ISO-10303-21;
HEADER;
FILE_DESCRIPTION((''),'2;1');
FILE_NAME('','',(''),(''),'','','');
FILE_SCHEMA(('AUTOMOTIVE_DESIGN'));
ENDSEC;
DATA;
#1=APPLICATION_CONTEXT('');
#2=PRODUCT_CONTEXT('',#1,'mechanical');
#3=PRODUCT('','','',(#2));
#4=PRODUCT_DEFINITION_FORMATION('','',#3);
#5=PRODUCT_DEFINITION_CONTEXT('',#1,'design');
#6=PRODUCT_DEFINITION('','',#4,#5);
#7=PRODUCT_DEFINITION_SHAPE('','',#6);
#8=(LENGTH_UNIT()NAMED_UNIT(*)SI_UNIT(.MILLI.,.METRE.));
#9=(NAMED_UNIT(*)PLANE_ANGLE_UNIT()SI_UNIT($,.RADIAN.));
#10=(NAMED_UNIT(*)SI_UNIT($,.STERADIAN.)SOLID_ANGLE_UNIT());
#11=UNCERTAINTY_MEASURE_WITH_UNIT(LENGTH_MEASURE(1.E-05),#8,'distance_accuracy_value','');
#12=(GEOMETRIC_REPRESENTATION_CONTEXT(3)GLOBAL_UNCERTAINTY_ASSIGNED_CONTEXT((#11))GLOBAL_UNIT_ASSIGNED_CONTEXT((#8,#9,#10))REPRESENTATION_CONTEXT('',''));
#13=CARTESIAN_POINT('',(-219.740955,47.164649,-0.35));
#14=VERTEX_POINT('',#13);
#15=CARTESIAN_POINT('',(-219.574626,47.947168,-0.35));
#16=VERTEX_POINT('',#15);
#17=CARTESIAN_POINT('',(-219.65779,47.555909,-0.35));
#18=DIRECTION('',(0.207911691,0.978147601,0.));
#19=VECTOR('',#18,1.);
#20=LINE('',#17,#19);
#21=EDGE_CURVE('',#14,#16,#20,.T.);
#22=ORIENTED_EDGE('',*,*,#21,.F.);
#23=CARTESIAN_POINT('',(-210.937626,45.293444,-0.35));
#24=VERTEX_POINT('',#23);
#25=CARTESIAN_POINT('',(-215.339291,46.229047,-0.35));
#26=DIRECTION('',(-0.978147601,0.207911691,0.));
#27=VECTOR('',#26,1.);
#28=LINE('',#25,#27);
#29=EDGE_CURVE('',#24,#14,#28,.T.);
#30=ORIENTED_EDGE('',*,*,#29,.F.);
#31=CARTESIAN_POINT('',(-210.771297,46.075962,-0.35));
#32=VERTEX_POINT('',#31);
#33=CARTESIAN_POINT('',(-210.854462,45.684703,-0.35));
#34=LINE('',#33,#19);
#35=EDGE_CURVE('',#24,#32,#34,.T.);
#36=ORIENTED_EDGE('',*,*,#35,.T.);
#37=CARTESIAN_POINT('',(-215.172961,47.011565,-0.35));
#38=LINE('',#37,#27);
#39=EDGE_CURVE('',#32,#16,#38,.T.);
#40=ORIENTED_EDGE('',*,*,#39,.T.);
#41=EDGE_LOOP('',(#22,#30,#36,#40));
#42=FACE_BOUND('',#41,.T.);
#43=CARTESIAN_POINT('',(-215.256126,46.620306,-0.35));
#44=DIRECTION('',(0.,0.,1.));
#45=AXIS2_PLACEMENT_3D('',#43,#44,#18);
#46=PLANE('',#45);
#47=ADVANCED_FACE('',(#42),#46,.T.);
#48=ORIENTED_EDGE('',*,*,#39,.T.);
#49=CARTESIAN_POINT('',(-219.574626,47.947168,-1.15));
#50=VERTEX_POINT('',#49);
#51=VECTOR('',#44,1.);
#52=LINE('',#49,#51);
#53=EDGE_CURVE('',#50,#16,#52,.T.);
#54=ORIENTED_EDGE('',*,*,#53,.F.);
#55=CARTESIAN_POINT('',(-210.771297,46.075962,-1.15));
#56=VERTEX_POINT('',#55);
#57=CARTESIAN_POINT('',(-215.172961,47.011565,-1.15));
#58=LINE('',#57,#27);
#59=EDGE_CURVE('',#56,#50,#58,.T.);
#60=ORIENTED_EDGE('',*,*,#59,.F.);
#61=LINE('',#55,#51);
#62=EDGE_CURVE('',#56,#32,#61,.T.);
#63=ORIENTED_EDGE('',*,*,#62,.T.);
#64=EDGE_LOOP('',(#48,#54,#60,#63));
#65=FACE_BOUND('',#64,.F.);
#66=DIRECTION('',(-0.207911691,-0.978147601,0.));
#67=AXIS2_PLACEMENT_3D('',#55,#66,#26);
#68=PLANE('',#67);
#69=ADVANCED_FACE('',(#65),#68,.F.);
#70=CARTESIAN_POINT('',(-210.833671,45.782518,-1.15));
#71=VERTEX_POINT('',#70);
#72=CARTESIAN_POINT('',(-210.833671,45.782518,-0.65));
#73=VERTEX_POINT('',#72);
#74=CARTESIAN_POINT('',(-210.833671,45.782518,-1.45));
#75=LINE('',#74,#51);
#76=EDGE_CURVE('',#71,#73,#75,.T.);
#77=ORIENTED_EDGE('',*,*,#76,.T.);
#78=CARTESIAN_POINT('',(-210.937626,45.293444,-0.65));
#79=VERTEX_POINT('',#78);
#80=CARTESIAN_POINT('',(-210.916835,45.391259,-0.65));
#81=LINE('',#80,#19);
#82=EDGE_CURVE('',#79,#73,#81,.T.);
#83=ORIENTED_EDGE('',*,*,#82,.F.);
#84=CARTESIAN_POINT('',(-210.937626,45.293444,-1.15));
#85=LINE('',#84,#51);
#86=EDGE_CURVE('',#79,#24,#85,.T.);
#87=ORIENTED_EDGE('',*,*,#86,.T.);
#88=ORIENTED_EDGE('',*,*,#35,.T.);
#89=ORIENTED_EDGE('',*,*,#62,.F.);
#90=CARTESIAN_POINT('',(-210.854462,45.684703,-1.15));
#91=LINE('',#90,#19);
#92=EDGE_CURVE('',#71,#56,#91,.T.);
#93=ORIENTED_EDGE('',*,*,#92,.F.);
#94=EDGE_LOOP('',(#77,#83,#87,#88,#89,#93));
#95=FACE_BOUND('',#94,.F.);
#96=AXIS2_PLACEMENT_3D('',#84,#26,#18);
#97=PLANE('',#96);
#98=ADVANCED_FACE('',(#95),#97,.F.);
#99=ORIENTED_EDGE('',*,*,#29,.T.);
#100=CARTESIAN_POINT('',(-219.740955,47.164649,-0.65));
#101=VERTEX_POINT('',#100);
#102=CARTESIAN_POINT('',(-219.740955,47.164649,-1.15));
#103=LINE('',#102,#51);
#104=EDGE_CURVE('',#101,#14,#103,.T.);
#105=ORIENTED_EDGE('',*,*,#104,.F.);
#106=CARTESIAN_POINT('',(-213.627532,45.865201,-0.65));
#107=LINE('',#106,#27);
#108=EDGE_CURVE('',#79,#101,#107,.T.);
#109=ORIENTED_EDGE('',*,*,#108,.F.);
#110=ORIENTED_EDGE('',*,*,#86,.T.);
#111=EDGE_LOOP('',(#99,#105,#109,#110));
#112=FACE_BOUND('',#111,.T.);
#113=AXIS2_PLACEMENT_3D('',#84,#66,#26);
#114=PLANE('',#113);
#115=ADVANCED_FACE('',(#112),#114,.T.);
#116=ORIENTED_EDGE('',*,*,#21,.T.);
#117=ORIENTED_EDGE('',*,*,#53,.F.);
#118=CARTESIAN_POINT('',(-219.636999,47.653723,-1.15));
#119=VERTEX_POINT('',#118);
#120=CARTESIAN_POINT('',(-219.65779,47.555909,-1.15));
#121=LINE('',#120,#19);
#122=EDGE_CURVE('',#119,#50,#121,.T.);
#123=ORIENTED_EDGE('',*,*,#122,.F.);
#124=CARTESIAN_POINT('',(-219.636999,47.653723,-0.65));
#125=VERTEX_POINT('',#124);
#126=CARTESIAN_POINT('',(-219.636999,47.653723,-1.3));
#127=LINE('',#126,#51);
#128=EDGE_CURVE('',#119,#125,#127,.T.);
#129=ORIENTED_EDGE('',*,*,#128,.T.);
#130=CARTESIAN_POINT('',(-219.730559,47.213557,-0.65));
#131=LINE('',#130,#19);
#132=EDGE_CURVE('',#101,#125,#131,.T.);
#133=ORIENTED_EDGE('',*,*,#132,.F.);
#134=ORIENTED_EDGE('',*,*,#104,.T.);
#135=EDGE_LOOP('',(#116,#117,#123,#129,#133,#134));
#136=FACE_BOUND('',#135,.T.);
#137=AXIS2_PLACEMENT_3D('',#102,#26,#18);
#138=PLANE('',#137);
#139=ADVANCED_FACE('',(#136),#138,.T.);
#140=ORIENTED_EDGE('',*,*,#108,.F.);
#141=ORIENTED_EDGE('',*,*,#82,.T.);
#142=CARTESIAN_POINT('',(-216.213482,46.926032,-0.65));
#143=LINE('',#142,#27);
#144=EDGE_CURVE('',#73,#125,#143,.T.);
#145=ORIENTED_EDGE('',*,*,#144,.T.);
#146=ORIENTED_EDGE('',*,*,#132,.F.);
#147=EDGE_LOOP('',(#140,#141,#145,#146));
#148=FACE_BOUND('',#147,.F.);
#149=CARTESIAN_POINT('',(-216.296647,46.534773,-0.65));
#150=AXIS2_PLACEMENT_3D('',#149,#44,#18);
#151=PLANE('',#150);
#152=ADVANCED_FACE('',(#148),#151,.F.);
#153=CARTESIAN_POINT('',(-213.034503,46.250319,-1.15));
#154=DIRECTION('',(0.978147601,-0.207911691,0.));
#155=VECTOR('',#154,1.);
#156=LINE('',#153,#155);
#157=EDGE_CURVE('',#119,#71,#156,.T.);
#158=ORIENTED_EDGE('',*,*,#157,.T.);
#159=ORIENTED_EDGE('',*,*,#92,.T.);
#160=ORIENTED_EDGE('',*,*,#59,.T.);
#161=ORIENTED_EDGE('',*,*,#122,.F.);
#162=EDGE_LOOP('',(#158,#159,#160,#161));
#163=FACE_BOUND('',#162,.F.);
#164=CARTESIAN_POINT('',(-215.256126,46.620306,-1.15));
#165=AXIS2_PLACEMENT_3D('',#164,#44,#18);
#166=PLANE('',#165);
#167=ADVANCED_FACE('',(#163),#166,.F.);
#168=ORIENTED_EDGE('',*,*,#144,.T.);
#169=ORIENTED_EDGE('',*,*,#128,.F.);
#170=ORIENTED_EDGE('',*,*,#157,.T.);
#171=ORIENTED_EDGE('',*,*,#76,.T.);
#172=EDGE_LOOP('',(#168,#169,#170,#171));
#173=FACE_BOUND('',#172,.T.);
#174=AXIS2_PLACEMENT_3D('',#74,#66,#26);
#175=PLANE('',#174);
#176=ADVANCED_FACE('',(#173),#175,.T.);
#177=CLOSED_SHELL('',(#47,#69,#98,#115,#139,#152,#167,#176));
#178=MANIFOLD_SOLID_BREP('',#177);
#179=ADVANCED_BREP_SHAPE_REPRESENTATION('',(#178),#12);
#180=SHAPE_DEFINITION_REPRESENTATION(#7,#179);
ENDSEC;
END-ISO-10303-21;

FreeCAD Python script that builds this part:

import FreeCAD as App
import Part
import Sketcher
from FreeCAD import Vector

doc = App.newDocument("Part")
body = doc.addObject("PartDesign::Body", "Body")

# Sketch on XY plane
sketch1 = body.newObject("Sketcher::SketchObject", "Sketch")
sketch1.AttachmentSupport = (doc.getObject("XY_Plane"), [""])
sketch1.MapMode = "FlatFace"
sketch1.addGeometry(Part.LineSegment(Vector(0, 11, 0), Vector(0, 0, 0)), False)
sketch1.addGeometry(Part.LineSegment(Vector(0, 0, 0), Vector(0.8, 0, 0)), False)
sketch1.addGeometry(Part.LineSegment(Vector(0.8, 0, 0), Vector(0.8, 11, 0)), False)
sketch1.addGeometry(Part.LineSegment(Vector(0.8, 11, 0), Vector(0, 11, 0)), False)
sketch1.addConstraint(Sketcher.Constraint("Coincident", 0, 2, 1, 1))
sketch1.addConstraint(Sketcher.Constraint("Coincident", 1, 2, 2, 1))
sketch1.addConstraint(Sketcher.Constraint("Coincident", 2, 2, 3, 1))
sketch1.addConstraint(Sketcher.Constraint("Coincident", 3, 2, 0, 1))
sketch1.addConstraint(Sketcher.Constraint("Vertical", 0))
sketch1.addConstraint(Sketcher.Constraint("Horizontal", 1))
sketch1.addConstraint(Sketcher.Constraint("Vertical", 2))
sketch1.addConstraint(Sketcher.Constraint("Horizontal", 3))
sketch1.addConstraint(Sketcher.Constraint("Coincident", 0, 2, -1, 1))
sketch1.addConstraint(Sketcher.Constraint("DistanceY", 0, 2, 0, 1, 11.0))
sketch1.addConstraint(Sketcher.Constraint("DistanceX", 1, 1, 1, 2, 0.8))
pad1 = body.newObject("PartDesign::Pad", "Pad")
pad1.Profile = sketch1
pad1.Length = 0.8
body2 = doc.addObject("PartDesign::Body", "Body001")

# Sketch on XY plane
sketch2 = body2.newObject("Sketcher::SketchObject", "Sketch001")
sketch2.AttachmentSupport = (doc.getObject("XY_Plane001"), [""])
sketch2.MapMode = "FlatFace"
sketch2.AttachmentOffset = App.Placement(Vector(0, 0, 0.3), App.Rotation())
sketch2.addGeometry(Part.LineSegment(Vector(0.3, 9, 0), Vector(0.3, 0, 0)), False)
sketch2.addGeometry(Part.LineSegment(Vector(0.3, 0, 0), Vector(1.1, 0, 0)), False)
sketch2.addGeometry(Part.LineSegment(Vector(1.1, 0, 0), Vector(1.1, 9, 0)), False)
sketch2.addGeometry(Part.LineSegment(Vector(1.1, 9, 0), Vector(0.3, 9, 0)), False)
sketch2.addConstraint(Sketcher.Constraint("Coincident", 0, 2, 1, 1))
sketch2.addConstraint(Sketcher.Constraint("Coincident", 1, 2, 2, 1))
sketch2.addConstraint(Sketcher.Constraint("Coincident", 2, 2, 3, 1))
sketch2.addConstraint(Sketcher.Constraint("Coincident", 3, 2, 0, 1))
sketch2.addConstraint(Sketcher.Constraint("Vertical", 0))
sketch2.addConstraint(Sketcher.Constraint("Horizontal", 1))
sketch2.addConstraint(Sketcher.Constraint("Vertical", 2))
sketch2.addConstraint(Sketcher.Constraint("Horizontal", 3))
sketch2.addConstraint(Sketcher.Constraint("PointOnObject", 0, 2, -1))
sketch2.addConstraint(Sketcher.Constraint("DistanceY", 0, 2, 0, 1, 9.0))
sketch2.addConstraint(Sketcher.Constraint("DistanceX", 1, 1, 1, 2, 0.8))
sketch2.addConstraint(Sketcher.Constraint("DistanceX", -1, 1, 0, 2, 0.3))
pad2 = body2.newObject("PartDesign::Pad", "Pad001")
pad2.Profile = sketch2
pad2.Length = 0.8
doc.recompute()

boolean = body2.newObject("PartDesign::Boolean", "Boolean")
boolean.Type = "Cut"
boolean.addObjects([body])
body3 = doc.addObject("PartDesign::Body", "Body002")
doc.recompute()

body2.Placement = App.Placement(Vector(-211, 45, -1.45), App.Rotation(Vector(0, 0, 1), 78))
boolean2 = body3.newObject("PartDesign::Boolean", "Boolean001")
boolean2.Type = "Fuse"
boolean2.addObjects([body2])

doc.recompute()
